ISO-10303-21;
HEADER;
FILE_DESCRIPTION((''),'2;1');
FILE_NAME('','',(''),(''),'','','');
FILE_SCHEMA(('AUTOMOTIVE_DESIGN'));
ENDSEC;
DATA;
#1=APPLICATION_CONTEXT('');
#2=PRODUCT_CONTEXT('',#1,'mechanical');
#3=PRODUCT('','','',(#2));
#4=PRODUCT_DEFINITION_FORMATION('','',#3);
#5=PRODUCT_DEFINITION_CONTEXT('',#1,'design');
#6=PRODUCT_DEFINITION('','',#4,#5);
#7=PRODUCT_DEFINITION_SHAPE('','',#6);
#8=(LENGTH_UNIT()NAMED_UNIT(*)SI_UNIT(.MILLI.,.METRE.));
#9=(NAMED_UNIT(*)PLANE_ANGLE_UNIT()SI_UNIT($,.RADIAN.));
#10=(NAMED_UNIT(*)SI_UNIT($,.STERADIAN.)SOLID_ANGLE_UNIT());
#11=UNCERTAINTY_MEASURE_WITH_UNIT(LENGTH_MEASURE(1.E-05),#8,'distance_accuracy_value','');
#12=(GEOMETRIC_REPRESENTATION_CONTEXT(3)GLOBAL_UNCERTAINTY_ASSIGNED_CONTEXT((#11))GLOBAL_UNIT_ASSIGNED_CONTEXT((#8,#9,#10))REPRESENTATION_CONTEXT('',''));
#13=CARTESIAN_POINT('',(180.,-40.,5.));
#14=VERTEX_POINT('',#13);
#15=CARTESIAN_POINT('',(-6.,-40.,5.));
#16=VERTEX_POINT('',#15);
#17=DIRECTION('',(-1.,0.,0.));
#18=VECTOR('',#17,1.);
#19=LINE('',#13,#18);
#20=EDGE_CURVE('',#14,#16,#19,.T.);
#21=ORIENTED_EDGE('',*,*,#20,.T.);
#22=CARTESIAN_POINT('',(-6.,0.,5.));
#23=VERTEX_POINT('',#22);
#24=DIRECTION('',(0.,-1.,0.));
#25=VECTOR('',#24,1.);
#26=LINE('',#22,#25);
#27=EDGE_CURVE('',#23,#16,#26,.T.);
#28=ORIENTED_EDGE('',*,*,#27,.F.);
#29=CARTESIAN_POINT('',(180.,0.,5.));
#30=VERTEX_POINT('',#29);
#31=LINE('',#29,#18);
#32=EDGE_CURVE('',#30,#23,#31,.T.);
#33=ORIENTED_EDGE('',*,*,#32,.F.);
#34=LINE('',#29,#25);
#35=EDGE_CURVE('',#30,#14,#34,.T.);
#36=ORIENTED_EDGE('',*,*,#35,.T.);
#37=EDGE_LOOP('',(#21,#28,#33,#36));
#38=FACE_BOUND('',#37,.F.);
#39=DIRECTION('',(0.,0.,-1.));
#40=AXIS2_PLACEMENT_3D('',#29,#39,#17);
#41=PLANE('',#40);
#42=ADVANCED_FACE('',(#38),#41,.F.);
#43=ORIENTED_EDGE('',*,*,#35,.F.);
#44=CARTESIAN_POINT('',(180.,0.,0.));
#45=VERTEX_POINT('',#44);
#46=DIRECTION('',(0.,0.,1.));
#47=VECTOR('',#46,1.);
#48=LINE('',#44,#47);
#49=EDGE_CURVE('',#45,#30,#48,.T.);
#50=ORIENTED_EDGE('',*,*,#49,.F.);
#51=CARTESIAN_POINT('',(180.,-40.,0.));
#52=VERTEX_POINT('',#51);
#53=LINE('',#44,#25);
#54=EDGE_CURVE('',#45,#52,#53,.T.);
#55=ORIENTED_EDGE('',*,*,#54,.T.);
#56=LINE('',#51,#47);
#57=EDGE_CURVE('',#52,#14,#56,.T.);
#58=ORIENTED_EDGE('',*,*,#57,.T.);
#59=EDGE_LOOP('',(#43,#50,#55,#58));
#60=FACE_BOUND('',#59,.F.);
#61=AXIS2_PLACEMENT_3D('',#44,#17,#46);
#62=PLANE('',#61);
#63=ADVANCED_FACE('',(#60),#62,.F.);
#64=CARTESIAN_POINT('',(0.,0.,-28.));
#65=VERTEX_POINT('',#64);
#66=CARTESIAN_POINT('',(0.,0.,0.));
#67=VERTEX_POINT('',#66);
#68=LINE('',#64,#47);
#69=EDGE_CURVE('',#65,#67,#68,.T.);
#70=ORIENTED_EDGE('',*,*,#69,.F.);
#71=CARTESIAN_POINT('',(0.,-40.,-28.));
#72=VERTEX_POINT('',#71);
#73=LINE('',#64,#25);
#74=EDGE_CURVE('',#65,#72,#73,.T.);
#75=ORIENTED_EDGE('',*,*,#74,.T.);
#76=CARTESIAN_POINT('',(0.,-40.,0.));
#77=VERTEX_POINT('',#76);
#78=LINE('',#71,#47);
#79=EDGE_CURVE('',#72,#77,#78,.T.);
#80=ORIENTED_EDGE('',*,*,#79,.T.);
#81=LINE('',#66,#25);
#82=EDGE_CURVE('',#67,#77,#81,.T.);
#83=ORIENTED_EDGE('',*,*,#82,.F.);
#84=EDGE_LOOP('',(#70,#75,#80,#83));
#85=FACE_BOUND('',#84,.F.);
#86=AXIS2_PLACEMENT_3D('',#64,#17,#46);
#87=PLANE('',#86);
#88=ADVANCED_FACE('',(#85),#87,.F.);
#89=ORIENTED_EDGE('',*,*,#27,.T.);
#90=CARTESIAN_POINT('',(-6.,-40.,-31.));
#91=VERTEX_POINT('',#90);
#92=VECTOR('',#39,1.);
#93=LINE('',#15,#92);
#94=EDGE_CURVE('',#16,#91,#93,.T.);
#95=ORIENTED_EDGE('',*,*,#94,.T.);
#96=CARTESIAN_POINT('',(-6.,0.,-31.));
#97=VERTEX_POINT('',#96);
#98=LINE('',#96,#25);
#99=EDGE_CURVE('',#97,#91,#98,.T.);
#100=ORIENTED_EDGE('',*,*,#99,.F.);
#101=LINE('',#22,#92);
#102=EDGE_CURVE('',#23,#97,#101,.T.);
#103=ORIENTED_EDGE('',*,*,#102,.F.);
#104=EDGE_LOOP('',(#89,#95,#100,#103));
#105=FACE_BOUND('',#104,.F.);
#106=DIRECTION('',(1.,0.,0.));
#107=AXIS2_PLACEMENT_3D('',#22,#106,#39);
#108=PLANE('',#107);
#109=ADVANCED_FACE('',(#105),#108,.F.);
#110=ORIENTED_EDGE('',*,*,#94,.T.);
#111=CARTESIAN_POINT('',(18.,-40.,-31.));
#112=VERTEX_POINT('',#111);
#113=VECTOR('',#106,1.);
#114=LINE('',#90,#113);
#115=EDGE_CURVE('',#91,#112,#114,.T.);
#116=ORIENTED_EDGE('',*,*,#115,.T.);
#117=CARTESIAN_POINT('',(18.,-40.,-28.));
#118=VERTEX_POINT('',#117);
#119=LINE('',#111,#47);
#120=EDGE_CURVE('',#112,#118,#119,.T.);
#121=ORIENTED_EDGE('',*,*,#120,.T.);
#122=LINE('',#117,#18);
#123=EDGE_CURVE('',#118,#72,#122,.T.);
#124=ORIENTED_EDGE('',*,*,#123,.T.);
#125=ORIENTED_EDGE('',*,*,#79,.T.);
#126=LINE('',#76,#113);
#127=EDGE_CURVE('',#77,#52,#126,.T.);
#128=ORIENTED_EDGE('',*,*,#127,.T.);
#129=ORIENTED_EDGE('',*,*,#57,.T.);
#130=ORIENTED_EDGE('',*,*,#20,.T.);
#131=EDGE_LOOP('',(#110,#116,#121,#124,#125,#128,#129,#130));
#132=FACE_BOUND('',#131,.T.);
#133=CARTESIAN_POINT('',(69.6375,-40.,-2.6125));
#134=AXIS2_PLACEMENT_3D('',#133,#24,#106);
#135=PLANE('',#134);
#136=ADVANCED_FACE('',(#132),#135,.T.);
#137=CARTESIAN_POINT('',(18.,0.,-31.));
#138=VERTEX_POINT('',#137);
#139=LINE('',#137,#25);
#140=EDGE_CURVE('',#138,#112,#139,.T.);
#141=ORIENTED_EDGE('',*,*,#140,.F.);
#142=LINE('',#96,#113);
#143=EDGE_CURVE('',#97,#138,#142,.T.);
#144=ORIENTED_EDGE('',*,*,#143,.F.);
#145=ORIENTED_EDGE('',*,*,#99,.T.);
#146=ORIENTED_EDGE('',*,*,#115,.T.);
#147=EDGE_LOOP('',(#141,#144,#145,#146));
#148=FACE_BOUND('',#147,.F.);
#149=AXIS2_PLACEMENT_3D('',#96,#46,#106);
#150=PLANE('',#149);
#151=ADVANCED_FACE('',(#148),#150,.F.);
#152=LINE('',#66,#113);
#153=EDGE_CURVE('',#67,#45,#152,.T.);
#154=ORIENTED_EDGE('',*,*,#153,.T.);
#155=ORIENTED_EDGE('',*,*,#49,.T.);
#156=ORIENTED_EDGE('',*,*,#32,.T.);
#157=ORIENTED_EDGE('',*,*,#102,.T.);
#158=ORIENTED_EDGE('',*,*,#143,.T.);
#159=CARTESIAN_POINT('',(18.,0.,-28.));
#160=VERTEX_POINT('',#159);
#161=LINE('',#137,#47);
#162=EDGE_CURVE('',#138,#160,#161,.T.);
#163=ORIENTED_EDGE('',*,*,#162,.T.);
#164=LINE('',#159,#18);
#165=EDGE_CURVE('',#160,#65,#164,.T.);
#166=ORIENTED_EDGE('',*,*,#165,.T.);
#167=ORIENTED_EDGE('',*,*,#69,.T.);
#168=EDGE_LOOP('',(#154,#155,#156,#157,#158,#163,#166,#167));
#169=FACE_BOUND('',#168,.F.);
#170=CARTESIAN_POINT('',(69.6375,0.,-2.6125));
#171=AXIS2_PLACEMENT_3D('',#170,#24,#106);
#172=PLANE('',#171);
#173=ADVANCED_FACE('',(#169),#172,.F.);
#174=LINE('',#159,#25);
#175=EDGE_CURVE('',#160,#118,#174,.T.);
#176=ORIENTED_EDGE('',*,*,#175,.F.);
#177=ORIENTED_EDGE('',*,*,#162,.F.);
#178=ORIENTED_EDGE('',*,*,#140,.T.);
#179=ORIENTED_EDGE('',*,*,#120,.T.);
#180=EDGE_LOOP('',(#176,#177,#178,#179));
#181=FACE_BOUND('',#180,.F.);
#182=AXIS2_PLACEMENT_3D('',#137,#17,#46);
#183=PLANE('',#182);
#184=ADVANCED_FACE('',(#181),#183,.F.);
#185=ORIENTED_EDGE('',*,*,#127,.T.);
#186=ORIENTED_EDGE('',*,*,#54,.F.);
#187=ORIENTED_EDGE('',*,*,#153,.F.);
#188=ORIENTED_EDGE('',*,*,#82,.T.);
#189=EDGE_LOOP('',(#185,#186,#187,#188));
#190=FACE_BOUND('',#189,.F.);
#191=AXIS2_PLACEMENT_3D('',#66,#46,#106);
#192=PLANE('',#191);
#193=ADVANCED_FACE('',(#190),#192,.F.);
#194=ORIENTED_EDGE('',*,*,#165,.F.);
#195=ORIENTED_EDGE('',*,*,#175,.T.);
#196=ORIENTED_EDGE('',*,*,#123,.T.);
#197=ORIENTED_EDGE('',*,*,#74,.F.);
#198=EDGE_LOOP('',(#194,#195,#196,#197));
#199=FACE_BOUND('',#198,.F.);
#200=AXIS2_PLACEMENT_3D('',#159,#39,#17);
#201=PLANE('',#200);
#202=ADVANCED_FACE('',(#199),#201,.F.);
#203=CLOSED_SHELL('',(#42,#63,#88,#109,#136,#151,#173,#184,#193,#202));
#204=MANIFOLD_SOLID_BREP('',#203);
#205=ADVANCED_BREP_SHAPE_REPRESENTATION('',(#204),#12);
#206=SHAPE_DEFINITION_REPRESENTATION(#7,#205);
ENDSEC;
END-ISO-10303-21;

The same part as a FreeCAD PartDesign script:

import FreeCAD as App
import Part
import Sketcher

V = App.Vector

doc = App.newDocument("Part")
body = doc.addObject("PartDesign::Body", "Body")

sketch1 = doc.addObject("Sketcher::SketchObject", "Sketch")
body.addObject(sketch1)
sketch1.AttachmentSupport = (doc.XZ_Plane, [""])
sketch1.MapMode = "FlatFace"
sketch1.addGeometry(Part.LineSegment(V(0, 0, 0), V(180, 0, 0)), False)
sketch1.addGeometry(Part.LineSegment(V(180, 0, 0), V(180, 5, 0)), False)
sketch1.addGeometry(Part.LineSegment(V(180, 5, 0), V(-6, 5, 0)), False)
sketch1.addGeometry(Part.LineSegment(V(-6, 5, 0), V(-6, -31, 0)), False)
sketch1.addGeometry(Part.LineSegment(V(-6, -31, 0), V(18, -31, 0)), False)
sketch1.addGeometry(Part.LineSegment(V(18, -31, 0), V(18, -28, 0)), False)
sketch1.addGeometry(Part.LineSegment(V(18, -28, 0), V(0, -28, 0)), False)
sketch1.addGeometry(Part.LineSegment(V(0, -28, 0), V(0, 0, 0)), False)
sketch1.addConstraint(Sketcher.Constraint("Coincident", 0, 2, 1, 1))
sketch1.addConstraint(Sketcher.Constraint("Coincident", 1, 2, 2, 1))
sketch1.addConstraint(Sketcher.Constraint("Coincident", 2, 2, 3, 1))
sketch1.addConstraint(Sketcher.Constraint("Coincident", 3, 2, 4, 1))
sketch1.addConstraint(Sketcher.Constraint("Coincident", 4, 2, 5, 1))
sketch1.addConstraint(Sketcher.Constraint("Coincident", 5, 2, 6, 1))
sketch1.addConstraint(Sketcher.Constraint("Coincident", 6, 2, 7, 1))
sketch1.addConstraint(Sketcher.Constraint("Coincident", 7, 2, 0, 1))
sketch1.addConstraint(Sketcher.Constraint("Horizontal", 0))
sketch1.addConstraint(Sketcher.Constraint("Vertical", 1))
sketch1.addConstraint(Sketcher.Constraint("Horizontal", 2))
sketch1.addConstraint(Sketcher.Constraint("Vertical", 3))
sketch1.addConstraint(Sketcher.Constraint("Horizontal", 4))
sketch1.addConstraint(Sketcher.Constraint("Vertical", 5))
sketch1.addConstraint(Sketcher.Constraint("Horizontal", 6))
sketch1.addConstraint(Sketcher.Constraint("Vertical", 7))
sketch1.addConstraint(Sketcher.Constraint("Coincident", 7, 2, -1, 1))
sketch1.addConstraint(Sketcher.Constraint("DistanceX", 0, 1, 0, 2, 180.0))
sketch1.addConstraint(Sketcher.Constraint("DistanceX", 2, 2, 2, 1, 186.0))
sketch1.addConstraint(Sketcher.Constraint("DistanceX", 4, 1, 4, 2, 24.0))
sketch1.addConstraint(Sketcher.Constraint("DistanceY", 1, 1, 1, 2, 5.0))
sketch1.addConstraint(Sketcher.Constraint("DistanceY", 3, 2, 3, 1, 36.0))
sketch1.addConstraint(Sketcher.Constraint("DistanceY", 5, 1, 5, 2, 3.0))
pad1 = doc.addObject("PartDesign::Pad", "Pad")
body.addObject(pad1)
pad1.Profile = sketch1
pad1.Length = 40

doc.recompute()
